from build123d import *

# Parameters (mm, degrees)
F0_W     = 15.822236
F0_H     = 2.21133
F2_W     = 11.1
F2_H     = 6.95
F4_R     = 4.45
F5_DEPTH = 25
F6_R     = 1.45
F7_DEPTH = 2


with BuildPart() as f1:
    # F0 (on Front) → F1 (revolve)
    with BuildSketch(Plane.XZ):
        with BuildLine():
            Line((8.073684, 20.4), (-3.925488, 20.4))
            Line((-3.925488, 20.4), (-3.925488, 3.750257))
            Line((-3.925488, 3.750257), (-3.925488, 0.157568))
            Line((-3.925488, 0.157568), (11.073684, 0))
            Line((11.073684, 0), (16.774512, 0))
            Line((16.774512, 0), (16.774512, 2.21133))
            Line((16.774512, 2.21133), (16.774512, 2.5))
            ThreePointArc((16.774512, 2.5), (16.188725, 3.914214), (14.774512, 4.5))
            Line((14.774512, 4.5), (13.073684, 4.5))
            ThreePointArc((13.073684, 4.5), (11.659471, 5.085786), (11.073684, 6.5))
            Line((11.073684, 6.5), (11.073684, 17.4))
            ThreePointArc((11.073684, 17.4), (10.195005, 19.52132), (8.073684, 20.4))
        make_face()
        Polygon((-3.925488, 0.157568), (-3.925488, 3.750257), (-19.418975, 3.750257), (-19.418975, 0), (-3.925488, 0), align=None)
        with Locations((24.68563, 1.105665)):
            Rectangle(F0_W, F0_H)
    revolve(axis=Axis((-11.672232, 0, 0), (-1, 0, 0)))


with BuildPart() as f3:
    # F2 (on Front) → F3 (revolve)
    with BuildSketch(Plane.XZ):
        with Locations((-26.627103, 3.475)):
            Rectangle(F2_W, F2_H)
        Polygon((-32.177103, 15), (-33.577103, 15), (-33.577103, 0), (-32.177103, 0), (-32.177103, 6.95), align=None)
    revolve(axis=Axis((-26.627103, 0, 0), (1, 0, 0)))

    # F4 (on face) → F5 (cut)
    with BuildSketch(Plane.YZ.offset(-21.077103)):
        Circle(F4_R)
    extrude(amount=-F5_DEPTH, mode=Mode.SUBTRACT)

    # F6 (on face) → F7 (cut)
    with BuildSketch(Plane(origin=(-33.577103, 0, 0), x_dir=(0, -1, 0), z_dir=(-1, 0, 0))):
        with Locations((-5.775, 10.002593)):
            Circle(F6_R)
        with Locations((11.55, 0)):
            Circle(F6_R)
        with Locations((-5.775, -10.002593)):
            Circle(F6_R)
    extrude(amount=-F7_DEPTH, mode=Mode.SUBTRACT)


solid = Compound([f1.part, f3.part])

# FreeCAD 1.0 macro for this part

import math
import FreeCAD as App
import Part
import Sketcher
Q = App.Units.Quantity

doc = App.newDocument("Part")
body = doc.addObject("PartDesign::Body", "Body")

# Sketch on XZ plane
sketch1 = body.newObject("Sketcher::SketchObject", "Sketch")
sketch1.AttachmentSupport = (doc.getObject("XZ_Plane"), [""])
sketch1.MapMode = "FlatFace"
sketch1.addGeometry(Part.LineSegment(App.Vector(8.07, 20.4, 0), App.Vector(-3.93, 20.4, 0)), False)
sketch1.addGeometry(Part.LineSegment(App.Vector(-3.93, 20.4, 0), App.Vector(-3.93, 3.75, 0)), False)
sketch1.addGeometry(Part.LineSegment(App.Vector(-3.93, 3.75, 0), App.Vector(-19.42, 3.75, 0)), False)
sketch1.addGeometry(Part.LineSegment(App.Vector(-19.42, 3.75, 0), App.Vector(-19.42, 0, 0)), False)
sketch1.addGeometry(Part.LineSegment(App.Vector(-19.42, 0, 0), App.Vector(-3.93, 0, 0)), False)
sketch1.addGeometry(Part.LineSegment(App.Vector(-3.93, 0, 0), App.Vector(-3.93, 0.16, 0)), False)
sketch1.addGeometry(Part.LineSegment(App.Vector(-3.93, 0.16, 0), App.Vector(11.07, 0, 0)), False)
sketch1.addGeometry(Part.LineSegment(App.Vector(11.07, 0, 0), App.Vector(32.6, 0, 0)), False)
sketch1.addGeometry(Part.LineSegment(App.Vector(32.6, 0, 0), App.Vector(32.6, 2.21, 0)), False)
sketch1.addGeometry(Part.LineSegment(App.Vector(32.6, 2.21, 0), App.Vector(16.77, 2.21, 0)), False)
sketch1.addGeometry(Part.LineSegment(App.Vector(16.77, 2.21, 0), App.Vector(16.77, 2.5, 0)), False)
sketch1.addGeometry(Part.ArcOfCircle(Part.Circle(App.Vector(14.77, 2.5, 0), App.Vector(0, 0, 1), 2), math.radians(0), math.radians(90)), False)
sketch1.addGeometry(Part.LineSegment(App.Vector(14.77, 4.5, 0), App.Vector(13.07, 4.5, 0)), False)
sketch1.addGeometry(Part.ArcOfCircle(Part.Circle(App.Vector(13.07, 6.5, 0), App.Vector(0, 0, 1), 2), math.radians(-180), math.radians(-90)), False)
sketch1.addGeometry(Part.LineSegment(App.Vector(11.07, 6.5, 0), App.Vector(11.07, 17.4, 0)), False)
sketch1.addGeometry(Part.ArcOfCircle(Part.Circle(App.Vector(8.07, 17.4, 0), App.Vector(0, 0, 1), 3), math.radians(0), math.radians(90)), False)
sketch1.addConstraint(Sketcher.Constraint("Coincident", 0, 2, 1, 1))
sketch1.addConstraint(Sketcher.Constraint("Coincident", 1, 2, 2, 1))
sketch1.addConstraint(Sketcher.Constraint("Coincident", 2, 2, 3, 1))
sketch1.addConstraint(Sketcher.Constraint("Coincident", 3, 2, 4, 1))
sketch1.addConstraint(Sketcher.Constraint("Coincident", 4, 2, 5, 1))
sketch1.addConstraint(Sketcher.Constraint("Coincident", 5, 2, 6, 1))
sketch1.addConstraint(Sketcher.Constraint("Coincident", 6, 2, 7, 1))
sketch1.addConstraint(Sketcher.Constraint("Coincident", 7, 2, 8, 1))
sketch1.addConstraint(Sketcher.Constraint("Coincident", 8, 2, 9, 1))
sketch1.addConstraint(Sketcher.Constraint("Coincident", 9, 2, 10, 1))
sketch1.addConstraint(Sketcher.Constraint("Tangent", 10, 2, 11, 1))
sketch1.addConstraint(Sketcher.Constraint("Tangent", 11, 2, 12, 1))
sketch1.addConstraint(Sketcher.Constraint("Tangent", 12, 2, 13, 2))
sketch1.addConstraint(Sketcher.Constraint("Tangent", 13, 1, 14, 1))
sketch1.addConstraint(Sketcher.Constraint("Tangent", 14, 2, 15, 1))
sketch1.addConstraint(Sketcher.Constraint("Tangent", 15, 2, 0, 1))
sketch1.addConstraint(Sketcher.Constraint("Horizontal", 0))
sketch1.addConstraint(Sketcher.Constraint("Vertical", 1))
sketch1.addConstraint(Sketcher.Constraint("Horizontal", 2))
sketch1.addConstraint(Sketcher.Constraint("Vertical", 3))
sketch1.addConstraint(Sketcher.Constraint("Horizontal", 4))
sketch1.addConstraint(Sketcher.Constraint("Vertical", 5))
sketch1.addConstraint(Sketcher.Constraint("Horizontal", 7))
sketch1.addConstraint(Sketcher.Constraint("Vertical", 8))
sketch1.addConstraint(Sketcher.Constraint("Horizontal", 9))
sketch1.addConstraint(Sketcher.Constraint("Vertical", 10))
sketch1.addConstraint(Sketcher.Constraint("Horizontal", 12))
sketch1.addConstraint(Sketcher.Constraint("Vertical", 14))
sketch1.addConstraint(Sketcher.Constraint("Equal", 11, 13))
sketch1.addConstraint(Sketcher.Constraint("PointOnObject", 3, 2, -1))
sketch1.addConstraint(Sketcher.Constraint("PointOnObject", 6, 2, -1))
sketch1.addConstraint(Sketcher.Constraint("Vertical", 1, 2, 4, 2))
sketch1.addConstraint(Sketcher.Constraint("Vertical", 6, 2, 13, 1))
sketch1.addConstraint(Sketcher.Constraint("Radius", 11, Q("2 mm")))
sketch1.addConstraint(Sketcher.Constraint("Radius", 15, Q("2.999999 mm")))
sketch1.addConstraint(Sketcher.Constraint("Distance", 6, Q("15 mm")))
sketch1.addConstraint(Sketcher.Constraint("DistanceY", 14, 1, 14, 2, Q("10.9 mm")))
sketch1.addConstraint(Sketcher.Constraint("DistanceY", -1, 1, 11, 3, Q("2.5 mm")))
sketch1.addConstraint(Sketcher.Constraint("DistanceX", 0, 2, 11, 3, Q("18.7 mm")))
sketch1.addConstraint(Sketcher.Constraint("DistanceY", 5, 1, 5, 2, Q("0.157568 mm")))
sketch1.addConstraint(Sketcher.Constraint("DistanceY", 8, 1, 8, 2, Q("2.21133 mm")))
sketch1.addConstraint(Sketcher.Constraint("DistanceX", 2, 2, 2, 1, Q("15.493487 mm")))
sketch1.addConstraint(Sketcher.Constraint("DistanceX", 7, 1, 7, 2, Q("21.523064 mm")))
sketch1.addConstraint(Sketcher.Constraint("DistanceY", 1, 2, 1, 1, Q("16.649743 mm")))
sketch1.addConstraint(Sketcher.Constraint("DistanceX", -1, 1, 11, 3, Q("14.774512 mm")))
revolution = body.newObject("PartDesign::Revolution", "Revolution")
revolution.Profile = sketch1
revolution.ReferenceAxis = (sketch1, ["H_Axis"])
revolution.Angle = 360
body2 = doc.addObject("PartDesign::Body", "Body001")

# Sketch on XZ plane
sketch2 = body2.newObject("Sketcher::SketchObject", "Sketch001")
sketch2.AttachmentSupport = (doc.getObject("XZ_Plane001"), [""])
sketch2.MapMode = "FlatFace"
sketch2.addGeometry(Part.LineSegment(App.Vector(-21.1, 0, 0), App.Vector(-21.1, 7, 0)), False)
sketch2.addGeometry(Part.LineSegment(App.Vector(-21.1, 7, 0), App.Vector(-32.2, 7, 0)), False)
sketch2.addGeometry(Part.LineSegment(App.Vector(-32.2, 7, 0), App.Vector(-32.2, 15, 0)), False)
sketch2.addGeometry(Part.LineSegment(App.Vector(-32.2, 15, 0), App.Vector(-33.6, 15, 0)), False)
sketch2.addGeometry(Part.LineSegment(App.Vector(-33.6, 15, 0), App.Vector(-33.6, 0, 0)), False)
sketch2.addGeometry(Part.LineSegment(App.Vector(-33.6, 0, 0), App.Vector(-21.1, 0, 0)), False)
sketch2.addConstraint(Sketcher.Constraint("Coincident", 0, 2, 1, 1))
sketch2.addConstraint(Sketcher.Constraint("Coincident", 1, 2, 2, 1))
sketch2.addConstraint(Sketcher.Constraint("Coincident", 2, 2, 3, 1))
sketch2.addConstraint(Sketcher.Constraint("Coincident", 3, 2, 4, 1))
sketch2.addConstraint(Sketcher.Constraint("Coincident", 4, 2, 5, 1))
sketch2.addConstraint(Sketcher.Constraint("Coincident", 5, 2, 0, 1))
sketch2.addConstraint(Sketcher.Constraint("Vertical", 0))
sketch2.addConstraint(Sketcher.Constraint("Horizontal", 1))
sketch2.addConstraint(Sketcher.Constraint("Vertical", 2))
sketch2.addConstraint(Sketcher.Constraint("Horizontal", 3))
sketch2.addConstraint(Sketcher.Constraint("Vertical", 4))
sketch2.addConstraint(Sketcher.Constraint("Horizontal", 5))
sketch2.addConstraint(Sketcher.Constraint("PointOnObject", 4, 2, -1))
sketch2.addConstraint(Sketcher.Constraint("DistanceY", 4, 2, 4, 1, Q("15 mm")))
sketch2.addConstraint(Sketcher.Constraint("DistanceX", 1, 2, 1, 1, Q("11.1 mm")))
sketch2.addConstraint(Sketcher.Constraint("DistanceX", 3, 2, 3, 1, Q("1.4 mm")))
sketch2.addConstraint(Sketcher.Constraint("DistanceY", 0, 1, 0, 2, Q("6.95 mm")))
sketch2.addConstraint(Sketcher.Constraint("DistanceX", 0, 2, -1, 1, Q("21.077103 mm")))
revolution2 = body2.newObject("PartDesign::Revolution", "Revolution001")
revolution2.Profile = sketch2
revolution2.ReferenceAxis = (sketch2, ["H_Axis"])
revolution2.Angle = 360

# Sketch on YZ plane
sketch3 = body2.newObject("Sketcher::SketchObject", "Sketch002")
sketch3.AttachmentSupport = (doc.getObject("YZ_Plane001"), [""])
sketch3.MapMode = "FlatFace"
sketch3.AttachmentOffset = App.Placement(App.Vector(0, 0, -21.077103), App.Rotation())
sketch3.addGeometry(Part.Circle(App.Vector(0, 0, 0), App.Vector(0, 0, 1), 4.5), False)
sketch3.addConstraint(Sketcher.Constraint("Coincident", 0, 3, -1, 1))
sketch3.addConstraint(Sketcher.Constraint("Diameter", 0, Q("8.9 mm")))
pocket1 = body2.newObject("PartDesign::Pocket", "Pocket")
pocket1.Profile = sketch3
pocket1.Length = 25

# Sketch on YZ plane
sketch4 = body2.newObject("Sketcher::SketchObject", "Sketch003")
sketch4.AttachmentSupport = (doc.getObject("YZ_Plane001"), [""])
sketch4.MapMode = "FlatFace"
sketch4.AttachmentOffset = App.Placement(App.Vector(0, 0, -33.577103), App.Rotation())
sketch4.addGeometry(Part.Circle(App.Vector(5.8, 10, 0), App.Vector(0, 0, 1), 1.4), False)
sketch4.addGeometry(Part.Circle(App.Vector(-11.6, 0, 0), App.Vector(0, 0, 1), 1.4), False)
sketch4.addGeometry(Part.Circle(App.Vector(5.8, -10, 0), App.Vector(0, 0, 1), 1.4), False)
sketch4.addConstraint(Sketcher.Constraint("Equal", 0, 1))
sketch4.addConstraint(Sketcher.Constraint("Equal", 1, 2))
sketch4.addConstraint(Sketcher.Constraint("Symmetric", 0, 3, 2, 3, -1))
sketch4.addConstraint(Sketcher.Constraint("PointOnObject", 1, 3, -1))
sketch4.addConstraint(Sketcher.Constraint("Diameter", 0, Q("2.9 mm")))
sketch4.addConstraint(Sketcher.Constraint("DistanceX", 1, 3, -1, 1, Q("11.55 mm")))
sketch4.addConstraint(Sketcher.Constraint("DistanceX", -1, 1, 0, 3, Q("5.775 mm")))
sketch4.addConstraint(Sketcher.Constraint("DistanceY", -1, 1, 0, 3, Q("10.002593 mm")))
pocket2 = body2.newObject("PartDesign::Pocket", "Pocket001")
pocket2.Profile = sketch4
pocket2.Length = 2
pocket2.Reversed = True

doc.recompute()
